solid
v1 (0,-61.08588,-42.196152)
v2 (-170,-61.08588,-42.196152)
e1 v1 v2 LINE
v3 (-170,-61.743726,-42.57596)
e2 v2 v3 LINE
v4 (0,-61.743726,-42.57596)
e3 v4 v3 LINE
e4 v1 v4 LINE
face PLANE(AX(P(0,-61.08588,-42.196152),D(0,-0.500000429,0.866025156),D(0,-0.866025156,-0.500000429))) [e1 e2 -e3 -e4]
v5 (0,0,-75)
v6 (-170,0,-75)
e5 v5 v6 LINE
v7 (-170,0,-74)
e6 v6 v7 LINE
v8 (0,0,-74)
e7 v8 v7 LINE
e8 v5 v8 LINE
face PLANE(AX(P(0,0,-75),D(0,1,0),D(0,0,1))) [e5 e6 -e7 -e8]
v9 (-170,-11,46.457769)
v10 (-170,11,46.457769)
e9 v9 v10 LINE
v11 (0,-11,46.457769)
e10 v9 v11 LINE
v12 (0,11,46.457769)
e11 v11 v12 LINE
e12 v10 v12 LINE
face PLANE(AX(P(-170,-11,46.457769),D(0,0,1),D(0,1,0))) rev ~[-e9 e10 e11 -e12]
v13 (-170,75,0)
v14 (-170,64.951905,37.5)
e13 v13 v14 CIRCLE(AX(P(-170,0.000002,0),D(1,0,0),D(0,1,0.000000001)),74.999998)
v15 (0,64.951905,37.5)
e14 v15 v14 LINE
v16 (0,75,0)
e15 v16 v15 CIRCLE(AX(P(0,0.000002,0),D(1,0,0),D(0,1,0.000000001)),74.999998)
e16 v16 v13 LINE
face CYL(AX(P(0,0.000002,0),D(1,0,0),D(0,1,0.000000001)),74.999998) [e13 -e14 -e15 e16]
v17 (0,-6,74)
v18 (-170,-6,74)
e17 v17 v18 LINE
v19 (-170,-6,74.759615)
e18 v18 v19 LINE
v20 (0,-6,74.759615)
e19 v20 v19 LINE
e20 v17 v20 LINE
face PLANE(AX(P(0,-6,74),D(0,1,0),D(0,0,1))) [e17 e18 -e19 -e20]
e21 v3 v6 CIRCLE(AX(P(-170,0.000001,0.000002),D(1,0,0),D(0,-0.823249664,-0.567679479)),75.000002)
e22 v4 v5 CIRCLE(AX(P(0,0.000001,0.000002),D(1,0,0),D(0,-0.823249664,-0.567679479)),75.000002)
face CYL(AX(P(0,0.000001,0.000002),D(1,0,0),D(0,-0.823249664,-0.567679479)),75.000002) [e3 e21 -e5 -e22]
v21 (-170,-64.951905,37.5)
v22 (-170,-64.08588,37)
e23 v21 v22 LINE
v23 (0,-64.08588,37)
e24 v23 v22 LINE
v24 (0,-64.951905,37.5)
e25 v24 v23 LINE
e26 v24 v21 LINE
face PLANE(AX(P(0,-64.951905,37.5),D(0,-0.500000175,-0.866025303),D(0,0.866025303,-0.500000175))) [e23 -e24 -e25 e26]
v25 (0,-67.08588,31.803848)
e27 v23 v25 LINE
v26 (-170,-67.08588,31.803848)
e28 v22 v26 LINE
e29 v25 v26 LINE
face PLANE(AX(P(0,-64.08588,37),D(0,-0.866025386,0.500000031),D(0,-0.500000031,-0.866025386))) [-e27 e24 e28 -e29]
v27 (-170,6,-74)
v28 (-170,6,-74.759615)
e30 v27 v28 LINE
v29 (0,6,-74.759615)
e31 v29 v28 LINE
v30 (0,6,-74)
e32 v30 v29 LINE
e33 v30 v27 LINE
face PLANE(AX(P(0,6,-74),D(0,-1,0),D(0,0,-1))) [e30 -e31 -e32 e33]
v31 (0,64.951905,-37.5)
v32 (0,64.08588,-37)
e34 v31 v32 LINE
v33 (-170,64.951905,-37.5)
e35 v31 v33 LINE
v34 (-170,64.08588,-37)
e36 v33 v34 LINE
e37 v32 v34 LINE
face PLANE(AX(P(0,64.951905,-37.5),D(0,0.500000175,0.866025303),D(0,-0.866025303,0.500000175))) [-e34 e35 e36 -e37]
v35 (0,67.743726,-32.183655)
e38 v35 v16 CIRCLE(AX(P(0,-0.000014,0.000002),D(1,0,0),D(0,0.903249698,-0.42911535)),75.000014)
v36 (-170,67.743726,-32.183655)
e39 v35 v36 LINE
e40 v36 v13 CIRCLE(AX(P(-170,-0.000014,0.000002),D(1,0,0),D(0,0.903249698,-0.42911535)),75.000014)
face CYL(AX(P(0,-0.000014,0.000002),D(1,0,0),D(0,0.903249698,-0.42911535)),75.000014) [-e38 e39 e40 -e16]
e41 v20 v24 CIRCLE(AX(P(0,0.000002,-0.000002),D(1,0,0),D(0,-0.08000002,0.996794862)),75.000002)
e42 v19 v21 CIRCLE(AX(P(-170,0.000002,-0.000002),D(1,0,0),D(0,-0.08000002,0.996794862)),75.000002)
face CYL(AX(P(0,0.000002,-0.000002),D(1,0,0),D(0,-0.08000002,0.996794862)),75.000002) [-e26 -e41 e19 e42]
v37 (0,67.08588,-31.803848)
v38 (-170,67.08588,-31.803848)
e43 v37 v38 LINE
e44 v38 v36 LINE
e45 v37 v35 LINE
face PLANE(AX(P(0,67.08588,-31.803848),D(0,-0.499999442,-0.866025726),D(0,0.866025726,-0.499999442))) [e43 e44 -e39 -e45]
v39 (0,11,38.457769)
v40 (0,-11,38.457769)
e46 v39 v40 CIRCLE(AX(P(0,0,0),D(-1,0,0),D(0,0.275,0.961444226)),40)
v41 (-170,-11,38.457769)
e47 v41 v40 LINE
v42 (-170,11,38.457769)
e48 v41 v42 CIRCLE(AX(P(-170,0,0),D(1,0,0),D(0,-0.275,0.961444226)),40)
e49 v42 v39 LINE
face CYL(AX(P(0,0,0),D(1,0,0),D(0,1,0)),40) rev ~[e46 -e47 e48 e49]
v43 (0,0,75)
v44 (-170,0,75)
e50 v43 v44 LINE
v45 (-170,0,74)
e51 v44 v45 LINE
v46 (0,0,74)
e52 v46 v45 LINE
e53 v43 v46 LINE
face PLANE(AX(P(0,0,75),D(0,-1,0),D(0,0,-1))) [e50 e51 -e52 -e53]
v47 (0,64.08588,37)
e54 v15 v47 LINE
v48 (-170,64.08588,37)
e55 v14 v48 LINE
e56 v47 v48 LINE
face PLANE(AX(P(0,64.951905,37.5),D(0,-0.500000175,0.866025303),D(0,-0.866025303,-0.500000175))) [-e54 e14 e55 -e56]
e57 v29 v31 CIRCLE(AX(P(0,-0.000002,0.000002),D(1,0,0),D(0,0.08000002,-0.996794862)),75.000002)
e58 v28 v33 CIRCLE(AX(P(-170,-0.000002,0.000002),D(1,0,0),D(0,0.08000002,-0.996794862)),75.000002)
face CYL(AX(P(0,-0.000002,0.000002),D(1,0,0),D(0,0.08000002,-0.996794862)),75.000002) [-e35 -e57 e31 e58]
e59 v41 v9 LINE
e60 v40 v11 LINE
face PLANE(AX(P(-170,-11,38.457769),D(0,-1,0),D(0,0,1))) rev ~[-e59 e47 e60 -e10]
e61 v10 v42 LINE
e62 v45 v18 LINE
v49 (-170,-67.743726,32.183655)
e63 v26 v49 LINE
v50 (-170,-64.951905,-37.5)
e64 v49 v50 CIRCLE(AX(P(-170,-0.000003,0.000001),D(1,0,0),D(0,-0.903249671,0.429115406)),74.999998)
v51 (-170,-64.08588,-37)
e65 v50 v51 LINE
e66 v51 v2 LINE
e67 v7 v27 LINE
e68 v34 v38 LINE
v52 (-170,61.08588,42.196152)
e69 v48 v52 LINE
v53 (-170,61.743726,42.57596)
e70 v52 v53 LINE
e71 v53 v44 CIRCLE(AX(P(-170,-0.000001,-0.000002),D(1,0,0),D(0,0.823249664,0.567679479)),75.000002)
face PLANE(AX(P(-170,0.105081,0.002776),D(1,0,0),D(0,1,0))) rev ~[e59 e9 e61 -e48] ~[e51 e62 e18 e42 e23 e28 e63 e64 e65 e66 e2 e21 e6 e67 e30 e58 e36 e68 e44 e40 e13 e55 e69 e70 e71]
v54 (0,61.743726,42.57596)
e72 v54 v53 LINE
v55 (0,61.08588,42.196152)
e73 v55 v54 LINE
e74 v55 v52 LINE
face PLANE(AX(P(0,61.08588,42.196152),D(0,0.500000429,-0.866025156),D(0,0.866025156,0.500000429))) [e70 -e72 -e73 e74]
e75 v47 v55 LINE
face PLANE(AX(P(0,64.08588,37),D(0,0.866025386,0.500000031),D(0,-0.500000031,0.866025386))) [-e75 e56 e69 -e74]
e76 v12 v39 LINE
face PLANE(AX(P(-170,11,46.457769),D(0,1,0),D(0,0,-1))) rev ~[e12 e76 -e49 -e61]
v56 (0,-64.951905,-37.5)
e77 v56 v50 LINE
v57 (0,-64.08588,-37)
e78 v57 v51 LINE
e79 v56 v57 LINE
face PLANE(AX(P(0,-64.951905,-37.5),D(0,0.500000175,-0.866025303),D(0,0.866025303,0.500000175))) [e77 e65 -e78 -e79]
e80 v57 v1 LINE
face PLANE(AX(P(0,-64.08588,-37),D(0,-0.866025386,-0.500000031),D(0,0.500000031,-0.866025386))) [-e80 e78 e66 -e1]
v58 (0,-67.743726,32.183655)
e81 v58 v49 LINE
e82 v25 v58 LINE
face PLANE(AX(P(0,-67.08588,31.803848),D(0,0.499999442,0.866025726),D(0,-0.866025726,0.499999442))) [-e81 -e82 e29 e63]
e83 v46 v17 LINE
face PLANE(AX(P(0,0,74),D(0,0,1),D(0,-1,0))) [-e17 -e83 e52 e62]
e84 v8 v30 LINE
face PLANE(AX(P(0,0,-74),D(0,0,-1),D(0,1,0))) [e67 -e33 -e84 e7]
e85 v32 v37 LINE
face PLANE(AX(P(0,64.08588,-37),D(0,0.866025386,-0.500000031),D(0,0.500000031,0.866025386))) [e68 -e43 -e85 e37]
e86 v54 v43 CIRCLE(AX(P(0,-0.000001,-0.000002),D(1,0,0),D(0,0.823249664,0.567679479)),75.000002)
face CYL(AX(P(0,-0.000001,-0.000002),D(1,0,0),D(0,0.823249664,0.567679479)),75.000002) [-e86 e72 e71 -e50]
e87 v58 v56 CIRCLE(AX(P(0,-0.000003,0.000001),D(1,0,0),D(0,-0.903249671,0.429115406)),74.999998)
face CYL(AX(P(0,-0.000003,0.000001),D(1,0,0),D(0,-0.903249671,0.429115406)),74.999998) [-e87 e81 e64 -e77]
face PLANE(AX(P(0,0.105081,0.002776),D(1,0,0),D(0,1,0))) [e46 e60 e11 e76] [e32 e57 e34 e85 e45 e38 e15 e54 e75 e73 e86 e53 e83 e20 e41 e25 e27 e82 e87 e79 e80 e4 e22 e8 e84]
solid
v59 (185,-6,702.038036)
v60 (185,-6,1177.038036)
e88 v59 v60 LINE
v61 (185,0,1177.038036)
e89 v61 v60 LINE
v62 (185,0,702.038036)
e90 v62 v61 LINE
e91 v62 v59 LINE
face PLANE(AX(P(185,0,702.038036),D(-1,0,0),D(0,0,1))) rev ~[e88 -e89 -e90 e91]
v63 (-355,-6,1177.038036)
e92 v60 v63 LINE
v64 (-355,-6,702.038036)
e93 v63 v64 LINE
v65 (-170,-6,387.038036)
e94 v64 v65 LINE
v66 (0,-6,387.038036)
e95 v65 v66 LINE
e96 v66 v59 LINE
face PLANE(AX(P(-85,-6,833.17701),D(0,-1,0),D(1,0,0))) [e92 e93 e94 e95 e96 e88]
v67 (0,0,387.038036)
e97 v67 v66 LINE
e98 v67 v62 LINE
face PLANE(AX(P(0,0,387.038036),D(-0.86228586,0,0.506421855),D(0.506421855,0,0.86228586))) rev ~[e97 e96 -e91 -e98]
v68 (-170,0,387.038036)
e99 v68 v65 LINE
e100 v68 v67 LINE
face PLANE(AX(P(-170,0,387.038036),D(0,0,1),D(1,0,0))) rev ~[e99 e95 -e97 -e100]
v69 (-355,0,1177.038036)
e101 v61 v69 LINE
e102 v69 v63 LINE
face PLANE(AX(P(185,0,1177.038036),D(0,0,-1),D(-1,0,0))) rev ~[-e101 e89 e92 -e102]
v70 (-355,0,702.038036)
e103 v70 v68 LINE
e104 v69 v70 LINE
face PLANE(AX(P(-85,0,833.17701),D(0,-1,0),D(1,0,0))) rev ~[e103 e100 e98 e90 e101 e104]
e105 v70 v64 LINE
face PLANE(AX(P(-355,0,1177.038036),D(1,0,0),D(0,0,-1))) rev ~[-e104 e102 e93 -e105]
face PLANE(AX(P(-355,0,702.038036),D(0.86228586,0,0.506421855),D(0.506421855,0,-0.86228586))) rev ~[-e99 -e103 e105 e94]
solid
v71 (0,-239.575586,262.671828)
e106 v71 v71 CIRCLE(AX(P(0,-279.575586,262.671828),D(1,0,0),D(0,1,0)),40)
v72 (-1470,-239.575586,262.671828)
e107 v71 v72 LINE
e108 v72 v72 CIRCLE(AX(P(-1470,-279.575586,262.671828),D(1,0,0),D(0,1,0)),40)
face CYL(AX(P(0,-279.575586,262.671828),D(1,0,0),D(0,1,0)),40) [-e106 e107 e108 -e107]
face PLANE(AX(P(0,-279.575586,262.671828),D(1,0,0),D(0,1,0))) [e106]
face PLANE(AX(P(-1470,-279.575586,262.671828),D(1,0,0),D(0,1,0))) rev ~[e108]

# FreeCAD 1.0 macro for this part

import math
import FreeCAD as App
import Part
import Sketcher
Q = App.Units.Quantity

doc = App.newDocument("Part")
body = doc.addObject("PartDesign::Body", "Body")

# Sketch on XZ plane
sketch1 = doc.addObject("Sketcher::SketchObject", "Sketch")
body.addObject(sketch1)
sketch1.AttachmentSupport = (doc.XZ_Plane, [""])
sketch1.MapMode = "FlatFace"
sketch1.addGeometry(Part.LineSegment(App.Vector(-355, 702, 0), App.Vector(-170, 387, 0)), False)
sketch1.addGeometry(Part.LineSegment(App.Vector(-170, 387, 0), App.Vector(0, 387, 0)), False)
sketch1.addGeometry(Part.LineSegment(App.Vector(0, 387, 0), App.Vector(185, 702, 0)), False)
sketch1.addGeometry(Part.LineSegment(App.Vector(185, 702, 0), App.Vector(185, 1177, 0)), False)
sketch1.addGeometry(Part.LineSegment(App.Vector(185, 1177, 0), App.Vector(-355, 1177, 0)), False)
sketch1.addGeometry(Part.LineSegment(App.Vector(-355, 1177, 0), App.Vector(-355, 702, 0)), False)
sketch1.addConstraint(Sketcher.Constraint("Coincident", 0, 2, 1, 1))
sketch1.addConstraint(Sketcher.Constraint("Coincident", 1, 2, 2, 1))
sketch1.addConstraint(Sketcher.Constraint("Coincident", 2, 2, 3, 1))
sketch1.addConstraint(Sketcher.Constraint("Coincident", 3, 2, 4, 1))
sketch1.addConstraint(Sketcher.Constraint("Coincident", 4, 2, 5, 1))
sketch1.addConstraint(Sketcher.Constraint("Coincident", 5, 2, 0, 1))
sketch1.addConstraint(Sketcher.Constraint("Horizontal", 1))
sketch1.addConstraint(Sketcher.Constraint("Vertical", 3))
sketch1.addConstraint(Sketcher.Constraint("Horizontal", 4))
sketch1.addConstraint(Sketcher.Constraint("Vertical", 5))
sketch1.addConstraint(Sketcher.Constraint("PointOnObject", 1, 2, -2))
sketch1.addConstraint(Sketcher.Constraint("Horizontal", 2, 2, 5, 2))
sketch1.addConstraint(Sketcher.Constraint("Equal", 0, 2))
sketch1.addConstraint(Sketcher.Constraint("DistanceX", 1, 1, 1, 2, 170.0))
sketch1.addConstraint(Sketcher.Constraint("DistanceX", 4, 2, 4, 1, 540.0))
sketch1.addConstraint(Sketcher.Constraint("DistanceY", 3, 1, 3, 2, 475.0))
sketch1.addConstraint(Sketcher.Constraint("DistanceY", 1, 2, 2, 2, 315.0))
sketch1.addConstraint(Sketcher.Constraint("DistanceY", -1, 1, 0, 2, 387.038036))
pad1 = doc.addObject("PartDesign::Pad", "Pad")
body.addObject(pad1)
pad1.Profile = sketch1
pad1.Length = 6
body2 = doc.addObject("PartDesign::Body", "Body001")

# Sketch on YZ plane
sketch2 = doc.addObject("Sketcher::SketchObject", "Sketch001")
body2.addObject(sketch2)
sketch2.AttachmentSupport = (doc.getObject("YZ_Plane001"), [""])
sketch2.MapMode = "FlatFace"
sketch2.addGeometry(Part.ArcOfCircle(Part.Circle(App.Vector(0, 0, 0), App.Vector(0, 0, 1), 75), math.radians(-25), math.radians(0)), False)
sketch2.addGeometry(Part.ArcOfCircle(Part.Circle(App.Vector(0, 0, 0), App.Vector(0, 0, 1), 75), math.radians(0), math.radians(30)), False)
sketch2.addGeometry(Part.LineSegment(App.Vector(65, 37.5, 0), App.Vector(64.1, 37, 0)), False)
sketch2.addGeometry(Part.LineSegment(App.Vector(64.1, 37, 0), App.Vector(61.1, 42.2, 0)), False)
sketch2.addGeometry(Part.LineSegment(App.Vector(61.1, 42.2, 0), App.Vector(61.7, 42.6, 0)), False)
sketch2.addGeometry(Part.ArcOfCircle(Part.Circle(App.Vector(0, 0, 0), App.Vector(0, 0, 1), 75), math.radians(35), math.radians(90)), False)
sketch2.addGeometry(Part.LineSegment(App.Vector(0, 75, 0), App.Vector(0, 74, 0)), False)
sketch2.addGeometry(Part.LineSegment(App.Vector(0, 74, 0), App.Vector(-6, 74, 0)), False)
sketch2.addGeometry(Part.LineSegment(App.Vector(-6, 74, 0), App.Vector(-6, 74.8, 0)), False)
sketch2.addGeometry(Part.ArcOfCircle(Part.Circle(App.Vector(0, 0, 0), App.Vector(0, 0, 1), 75), math.radians(95), math.radians(150)), False)
sketch2.addGeometry(Part.LineSegment(App.Vector(-65, 37.5, 0), App.Vector(-64.1, 37, 0)), False)
sketch2.addGeometry(Part.LineSegment(App.Vector(-64.1, 37, 0), App.Vector(-67.1, 31.8, 0)), False)
sketch2.addGeometry(Part.LineSegment(App.Vector(-67.1, 31.8, 0), App.Vector(-67.7, 32.2, 0)), False)
sketch2.addGeometry(Part.ArcOfCircle(Part.Circle(App.Vector(0, 0, 0), App.Vector(0, 0, 1), 75), math.radians(155), math.radians(210)), False)
sketch2.addGeometry(Part.LineSegment(App.Vector(-65, -37.5, 0), App.Vector(-64.1, -37, 0)), False)
sketch2.addGeometry(Part.LineSegment(App.Vector(-64.1, -37, 0), App.Vector(-61.1, -42.2, 0)), False)
sketch2.addGeometry(Part.LineSegment(App.Vector(-61.1, -42.2, 0), App.Vector(-61.7, -42.6, 0)), False)
sketch2.addGeometry(Part.ArcOfCircle(Part.Circle(App.Vector(0, 0, 0), App.Vector(0, 0, 1), 75), math.radians(-145), math.radians(-90)), False)
sketch2.addGeometry(Part.LineSegment(App.Vector(0, -75, 0), App.Vector(0, -74, 0)), False)
sketch2.addGeometry(Part.LineSegment(App.Vector(0, -74, 0), App.Vector(6, -74, 0)), False)
sketch2.addGeometry(Part.LineSegment(App.Vector(6, -74, 0), App.Vector(6, -74.8, 0)), False)
sketch2.addGeometry(Part.ArcOfCircle(Part.Circle(App.Vector(0, 0, 0), App.Vector(0, 0, 1), 75), math.radians(-85), math.radians(-30)), False)
sketch2.addGeometry(Part.LineSegment(App.Vector(65, -37.5, 0), App.Vector(64.1, -37, 0)), False)
sketch2.addGeometry(Part.LineSegment(App.Vector(64.1, -37, 0), App.Vector(67.1, -31.8, 0)), False)
sketch2.addGeometry(Part.LineSegment(App.Vector(67.1, -31.8, 0), App.Vector(67.7, -32.2, 0)), False)
sketch2.addGeometry(Part.Circle(App.Vector(0, 0, 0), App.Vector(0, 0, 1), 40), False)
sketch2.addConstraint(Sketcher.Constraint("Tangent", 0, 2, 1, 1))
sketch2.addConstraint(Sketcher.Constraint("Coincident", 1, 2, 2, 1))
sketch2.addConstraint(Sketcher.Constraint("Coincident", 2, 2, 3, 1))
sketch2.addConstraint(Sketcher.Constraint("Coincident", 3, 2, 4, 1))
sketch2.addConstraint(Sketcher.Constraint("Coincident", 4, 2, 5, 1))
sketch2.addConstraint(Sketcher.Constraint("Coincident", 5, 2, 6, 1))
sketch2.addConstraint(Sketcher.Constraint("Coincident", 6, 2, 7, 1))
sketch2.addConstraint(Sketcher.Constraint("Coincident", 7, 2, 8, 1))
sketch2.addConstraint(Sketcher.Constraint("Coincident", 8, 2, 9, 1))
sketch2.addConstraint(Sketcher.Constraint("Coincident", 9, 2, 10, 1))
sketch2.addConstraint(Sketcher.Constraint("Coincident", 10, 2, 11, 1))
sketch2.addConstraint(Sketcher.Constraint("Coincident", 11, 2, 12, 1))
sketch2.addConstraint(Sketcher.Constraint("Coincident", 12, 2, 13, 1))
sketch2.addConstraint(Sketcher.Constraint("Coincident", 13, 2, 14, 1))
sketch2.addConstraint(Sketcher.Constraint("Coincident", 14, 2, 15, 1))
sketch2.addConstraint(Sketcher.Constraint("Coincident", 15, 2, 16, 1))
sketch2.addConstraint(Sketcher.Constraint("Coincident", 16, 2, 17, 1))
sketch2.addConstraint(Sketcher.Constraint("Coincident", 17, 2, 18, 1))
sketch2.addConstraint(Sketcher.Constraint("Coincident", 18, 2, 19, 1))
sketch2.addConstraint(Sketcher.Constraint("Coincident", 19, 2, 20, 1))
sketch2.addConstraint(Sketcher.Constraint("Coincident", 20, 2, 21, 1))
sketch2.addConstraint(Sketcher.Constraint("Coincident", 21, 2, 22, 1))
sketch2.addConstraint(Sketcher.Constraint("Coincident", 22, 2, 23, 1))
sketch2.addConstraint(Sketcher.Constraint("Coincident", 23, 2, 24, 1))
sketch2.addConstraint(Sketcher.Constraint("Coincident", 24, 2, 0, 1))
sketch2.addConstraint(Sketcher.Constraint("Vertical", 6))
sketch2.addConstraint(Sketcher.Constraint("Horizontal", 7))
sketch2.addConstraint(Sketcher.Constraint("Vertical", 8))
sketch2.addConstraint(Sketcher.Constraint("Vertical", 18))
sketch2.addConstraint(Sketcher.Constraint("Horizontal", 19))
sketch2.addConstraint(Sketcher.Constraint("Vertical", 20))
sketch2.addConstraint(Sketcher.Constraint("Coincident", 1, 3, -1, 1))
sketch2.addConstraint(Sketcher.Constraint("Coincident", 5, 3, -1, 1))
sketch2.addConstraint(Sketcher.Constraint("Coincident", 9, 3, -1, 1))
sketch2.addConstraint(Sketcher.Constraint("Coincident", 13, 3, -1, 1))
sketch2.addConstraint(Sketcher.Constraint("Coincident", 17, 3, -1, 1))
sketch2.addConstraint(Sketcher.Constraint("Coincident", 21, 3, -1, 1))
sketch2.addConstraint(Sketcher.Constraint("Coincident", 25, 3, -1, 1))
sketch2.addConstraint(Sketcher.Constraint("Equal", 5, 9))
sketch2.addConstraint(Sketcher.Constraint("Equal", 1, 13))
sketch2.addConstraint(Sketcher.Constraint("Equal", 9, 17))
sketch2.addConstraint(Sketcher.Constraint("Equal", 17, 21))
sketch2.addConstraint(Sketcher.Constraint("Symmetric", 2, 2, 14, 2, -1, 1))
sketch2.addConstraint(Sketcher.Constraint("Symmetric", 3, 2, 15, 2, -1, 1))
sketch2.addConstraint(Sketcher.Constraint("Symmetric", 6, 2, 18, 2, -1, 1))
sketch2.addConstraint(Sketcher.Constraint("Symmetric", 10, 2, 22, 2, -1, 1))
sketch2.addConstraint(Sketcher.Constraint("Symmetric", 11, 2, 23, 2, -1, 1))
sketch2.addConstraint(Sketcher.Constraint("Symmetric", 12, 2, 24, 2, -1, 1))
sketch2.addConstraint(Sketcher.Constraint("Symmetric", 1, 2, 9, 2, -2))
sketch2.addConstraint(Sketcher.Constraint("Symmetric", 2, 2, 10, 2, -2))
sketch2.addConstraint(Sketcher.Constraint("PointOnObject", 0, 2, -1))
sketch2.addConstraint(Sketcher.Constraint("PointOnObject", 5, 2, -2))
sketch2.addConstraint(Sketcher.Constraint("Perpendicular", 2, 3))
sketch2.addConstraint(Sketcher.Constraint("Perpendicular", 3, 4))
sketch2.addConstraint(Sketcher.Constraint("Perpendicular", 10, 11))
sketch2.addConstraint(Sketcher.Constraint("Perpendicular", 11, 12))
sketch2.addConstraint(Sketcher.Constraint("Parallel", 4, 14))
sketch2.addConstraint(Sketcher.Constraint("Perpendicular", 15, 16))
sketch2.addConstraint(Sketcher.Constraint("Parallel", 12, 22))
sketch2.addConstraint(Sketcher.Constraint("Equal", 7, 19))
sketch2.addConstraint(Sketcher.Constraint("Equal", 3, 11))
sketch2.addConstraint(Sketcher.Constraint("Equal", 4, 12))
sketch2.addConstraint(Sketcher.Constraint("Diameter", 25, 80.0))
sketch2.addConstraint(Sketcher.Constraint("Radius", 1, 74.999998))
sketch2.addConstraint(Sketcher.Constraint("DistanceX", 7, 2, 7, 1, 6.0))
sketch2.addConstraint(Sketcher.Constraint("DistanceY", 6, 2, 6, 1, 1.0))
sketch2.addConstraint(Sketcher.Constraint("Angle", 3, Q("120.000002 deg")))
sketch2.addConstraint(Sketcher.Constraint("Distance", 2, 1.0))
sketch2.addConstraint(Sketcher.Constraint("Distance", 3, 6.0))
pad2 = doc.addObject("PartDesign::Pad", "Pad001")
body2.addObject(pad2)
pad2.Profile = sketch2
pad2.Length = 170
pad2.Reversed = True

# Sketch on YZ plane
sketch3 = doc.addObject("Sketcher::SketchObject", "Sketch002")
body2.addObject(sketch3)
sketch3.AttachmentSupport = (doc.getObject("YZ_Plane001"), [""])
sketch3.MapMode = "FlatFace"
sketch3.AttachmentOffset = App.Placement(App.Vector(0, 0, -170), App.Rotation())
sketch3.addGeometry(Part.LineSegment(App.Vector(11, 46, 0), App.Vector(11, 38, 0)), False)
sketch3.addGeometry(Part.ArcOfCircle(Part.Circle(App.Vector(0, 0, 0), App.Vector(0, 0, 1), 40), math.radians(74), math.radians(106)), False)
sketch3.addGeometry(Part.LineSegment(App.Vector(-11, 38, 0), App.Vector(-11, 46, 0)), False)
sketch3.addGeometry(Part.LineSegment(App.Vector(-11, 46, 0), App.Vector(11, 46, 0)), False)
sketch3.addConstraint(Sketcher.Constraint("Coincident", 0, 2, 1, 1))
sketch3.addConstraint(Sketcher.Constraint("Coincident", 1, 2, 2, 1))
sketch3.addConstraint(Sketcher.Constraint("Coincident", 2, 2, 3, 1))
sketch3.addConstraint(Sketcher.Constraint("Coincident", 3, 2, 0, 1))
sketch3.addConstraint(Sketcher.Constraint("Vertical", 0))
sketch3.addConstraint(Sketcher.Constraint("Vertical", 2))
sketch3.addConstraint(Sketcher.Constraint("Horizontal", 3))
sketch3.addConstraint(Sketcher.Constraint("Coincident", 1, 3, -1, 1))
sketch3.addConstraint(Sketcher.Constraint("Horizontal", 0, 2, 1, 2))
sketch3.addConstraint(Sketcher.Constraint("Radius", 1, 39.999999))
sketch3.addConstraint(Sketcher.Constraint("DistanceX", 3, 1, 3, 2, 22.0))
sketch3.addConstraint(Sketcher.Constraint("DistanceY", 0, 2, 0, 1, 8.0))
pocket1 = doc.addObject("PartDesign::Pocket", "Pocket")
body2.addObject(pocket1)
pocket1.Profile = sketch3
pocket1.Length = 170
pocket1.Reversed = True
body3 = doc.addObject("PartDesign::Body", "Body002")

# Sketch on YZ plane
sketch4 = doc.addObject("Sketcher::SketchObject", "Sketch003")
body3.addObject(sketch4)
sketch4.AttachmentSupport = (doc.getObject("YZ_Plane002"), [""])
sketch4.MapMode = "FlatFace"
sketch4.addGeometry(Part.Circle(App.Vector(-280, 263, 0), App.Vector(0, 0, 1), 40), False)
sketch4.addConstraint(Sketcher.Constraint("Diameter", 0, 80.0))
sketch4.addConstraint(Sketcher.Constraint("DistanceY", -1, 1, 0, 3, 262.671828))
sketch4.addConstraint(Sketcher.Constraint("DistanceX", 0, 3, -1, 1, 279.575586))
pad3 = doc.addObject("PartDesign::Pad", "Pad002")
body3.addObject(pad3)
pad3.Profile = sketch4
pad3.Length = 1470
pad3.Reversed = True

doc.recompute()
